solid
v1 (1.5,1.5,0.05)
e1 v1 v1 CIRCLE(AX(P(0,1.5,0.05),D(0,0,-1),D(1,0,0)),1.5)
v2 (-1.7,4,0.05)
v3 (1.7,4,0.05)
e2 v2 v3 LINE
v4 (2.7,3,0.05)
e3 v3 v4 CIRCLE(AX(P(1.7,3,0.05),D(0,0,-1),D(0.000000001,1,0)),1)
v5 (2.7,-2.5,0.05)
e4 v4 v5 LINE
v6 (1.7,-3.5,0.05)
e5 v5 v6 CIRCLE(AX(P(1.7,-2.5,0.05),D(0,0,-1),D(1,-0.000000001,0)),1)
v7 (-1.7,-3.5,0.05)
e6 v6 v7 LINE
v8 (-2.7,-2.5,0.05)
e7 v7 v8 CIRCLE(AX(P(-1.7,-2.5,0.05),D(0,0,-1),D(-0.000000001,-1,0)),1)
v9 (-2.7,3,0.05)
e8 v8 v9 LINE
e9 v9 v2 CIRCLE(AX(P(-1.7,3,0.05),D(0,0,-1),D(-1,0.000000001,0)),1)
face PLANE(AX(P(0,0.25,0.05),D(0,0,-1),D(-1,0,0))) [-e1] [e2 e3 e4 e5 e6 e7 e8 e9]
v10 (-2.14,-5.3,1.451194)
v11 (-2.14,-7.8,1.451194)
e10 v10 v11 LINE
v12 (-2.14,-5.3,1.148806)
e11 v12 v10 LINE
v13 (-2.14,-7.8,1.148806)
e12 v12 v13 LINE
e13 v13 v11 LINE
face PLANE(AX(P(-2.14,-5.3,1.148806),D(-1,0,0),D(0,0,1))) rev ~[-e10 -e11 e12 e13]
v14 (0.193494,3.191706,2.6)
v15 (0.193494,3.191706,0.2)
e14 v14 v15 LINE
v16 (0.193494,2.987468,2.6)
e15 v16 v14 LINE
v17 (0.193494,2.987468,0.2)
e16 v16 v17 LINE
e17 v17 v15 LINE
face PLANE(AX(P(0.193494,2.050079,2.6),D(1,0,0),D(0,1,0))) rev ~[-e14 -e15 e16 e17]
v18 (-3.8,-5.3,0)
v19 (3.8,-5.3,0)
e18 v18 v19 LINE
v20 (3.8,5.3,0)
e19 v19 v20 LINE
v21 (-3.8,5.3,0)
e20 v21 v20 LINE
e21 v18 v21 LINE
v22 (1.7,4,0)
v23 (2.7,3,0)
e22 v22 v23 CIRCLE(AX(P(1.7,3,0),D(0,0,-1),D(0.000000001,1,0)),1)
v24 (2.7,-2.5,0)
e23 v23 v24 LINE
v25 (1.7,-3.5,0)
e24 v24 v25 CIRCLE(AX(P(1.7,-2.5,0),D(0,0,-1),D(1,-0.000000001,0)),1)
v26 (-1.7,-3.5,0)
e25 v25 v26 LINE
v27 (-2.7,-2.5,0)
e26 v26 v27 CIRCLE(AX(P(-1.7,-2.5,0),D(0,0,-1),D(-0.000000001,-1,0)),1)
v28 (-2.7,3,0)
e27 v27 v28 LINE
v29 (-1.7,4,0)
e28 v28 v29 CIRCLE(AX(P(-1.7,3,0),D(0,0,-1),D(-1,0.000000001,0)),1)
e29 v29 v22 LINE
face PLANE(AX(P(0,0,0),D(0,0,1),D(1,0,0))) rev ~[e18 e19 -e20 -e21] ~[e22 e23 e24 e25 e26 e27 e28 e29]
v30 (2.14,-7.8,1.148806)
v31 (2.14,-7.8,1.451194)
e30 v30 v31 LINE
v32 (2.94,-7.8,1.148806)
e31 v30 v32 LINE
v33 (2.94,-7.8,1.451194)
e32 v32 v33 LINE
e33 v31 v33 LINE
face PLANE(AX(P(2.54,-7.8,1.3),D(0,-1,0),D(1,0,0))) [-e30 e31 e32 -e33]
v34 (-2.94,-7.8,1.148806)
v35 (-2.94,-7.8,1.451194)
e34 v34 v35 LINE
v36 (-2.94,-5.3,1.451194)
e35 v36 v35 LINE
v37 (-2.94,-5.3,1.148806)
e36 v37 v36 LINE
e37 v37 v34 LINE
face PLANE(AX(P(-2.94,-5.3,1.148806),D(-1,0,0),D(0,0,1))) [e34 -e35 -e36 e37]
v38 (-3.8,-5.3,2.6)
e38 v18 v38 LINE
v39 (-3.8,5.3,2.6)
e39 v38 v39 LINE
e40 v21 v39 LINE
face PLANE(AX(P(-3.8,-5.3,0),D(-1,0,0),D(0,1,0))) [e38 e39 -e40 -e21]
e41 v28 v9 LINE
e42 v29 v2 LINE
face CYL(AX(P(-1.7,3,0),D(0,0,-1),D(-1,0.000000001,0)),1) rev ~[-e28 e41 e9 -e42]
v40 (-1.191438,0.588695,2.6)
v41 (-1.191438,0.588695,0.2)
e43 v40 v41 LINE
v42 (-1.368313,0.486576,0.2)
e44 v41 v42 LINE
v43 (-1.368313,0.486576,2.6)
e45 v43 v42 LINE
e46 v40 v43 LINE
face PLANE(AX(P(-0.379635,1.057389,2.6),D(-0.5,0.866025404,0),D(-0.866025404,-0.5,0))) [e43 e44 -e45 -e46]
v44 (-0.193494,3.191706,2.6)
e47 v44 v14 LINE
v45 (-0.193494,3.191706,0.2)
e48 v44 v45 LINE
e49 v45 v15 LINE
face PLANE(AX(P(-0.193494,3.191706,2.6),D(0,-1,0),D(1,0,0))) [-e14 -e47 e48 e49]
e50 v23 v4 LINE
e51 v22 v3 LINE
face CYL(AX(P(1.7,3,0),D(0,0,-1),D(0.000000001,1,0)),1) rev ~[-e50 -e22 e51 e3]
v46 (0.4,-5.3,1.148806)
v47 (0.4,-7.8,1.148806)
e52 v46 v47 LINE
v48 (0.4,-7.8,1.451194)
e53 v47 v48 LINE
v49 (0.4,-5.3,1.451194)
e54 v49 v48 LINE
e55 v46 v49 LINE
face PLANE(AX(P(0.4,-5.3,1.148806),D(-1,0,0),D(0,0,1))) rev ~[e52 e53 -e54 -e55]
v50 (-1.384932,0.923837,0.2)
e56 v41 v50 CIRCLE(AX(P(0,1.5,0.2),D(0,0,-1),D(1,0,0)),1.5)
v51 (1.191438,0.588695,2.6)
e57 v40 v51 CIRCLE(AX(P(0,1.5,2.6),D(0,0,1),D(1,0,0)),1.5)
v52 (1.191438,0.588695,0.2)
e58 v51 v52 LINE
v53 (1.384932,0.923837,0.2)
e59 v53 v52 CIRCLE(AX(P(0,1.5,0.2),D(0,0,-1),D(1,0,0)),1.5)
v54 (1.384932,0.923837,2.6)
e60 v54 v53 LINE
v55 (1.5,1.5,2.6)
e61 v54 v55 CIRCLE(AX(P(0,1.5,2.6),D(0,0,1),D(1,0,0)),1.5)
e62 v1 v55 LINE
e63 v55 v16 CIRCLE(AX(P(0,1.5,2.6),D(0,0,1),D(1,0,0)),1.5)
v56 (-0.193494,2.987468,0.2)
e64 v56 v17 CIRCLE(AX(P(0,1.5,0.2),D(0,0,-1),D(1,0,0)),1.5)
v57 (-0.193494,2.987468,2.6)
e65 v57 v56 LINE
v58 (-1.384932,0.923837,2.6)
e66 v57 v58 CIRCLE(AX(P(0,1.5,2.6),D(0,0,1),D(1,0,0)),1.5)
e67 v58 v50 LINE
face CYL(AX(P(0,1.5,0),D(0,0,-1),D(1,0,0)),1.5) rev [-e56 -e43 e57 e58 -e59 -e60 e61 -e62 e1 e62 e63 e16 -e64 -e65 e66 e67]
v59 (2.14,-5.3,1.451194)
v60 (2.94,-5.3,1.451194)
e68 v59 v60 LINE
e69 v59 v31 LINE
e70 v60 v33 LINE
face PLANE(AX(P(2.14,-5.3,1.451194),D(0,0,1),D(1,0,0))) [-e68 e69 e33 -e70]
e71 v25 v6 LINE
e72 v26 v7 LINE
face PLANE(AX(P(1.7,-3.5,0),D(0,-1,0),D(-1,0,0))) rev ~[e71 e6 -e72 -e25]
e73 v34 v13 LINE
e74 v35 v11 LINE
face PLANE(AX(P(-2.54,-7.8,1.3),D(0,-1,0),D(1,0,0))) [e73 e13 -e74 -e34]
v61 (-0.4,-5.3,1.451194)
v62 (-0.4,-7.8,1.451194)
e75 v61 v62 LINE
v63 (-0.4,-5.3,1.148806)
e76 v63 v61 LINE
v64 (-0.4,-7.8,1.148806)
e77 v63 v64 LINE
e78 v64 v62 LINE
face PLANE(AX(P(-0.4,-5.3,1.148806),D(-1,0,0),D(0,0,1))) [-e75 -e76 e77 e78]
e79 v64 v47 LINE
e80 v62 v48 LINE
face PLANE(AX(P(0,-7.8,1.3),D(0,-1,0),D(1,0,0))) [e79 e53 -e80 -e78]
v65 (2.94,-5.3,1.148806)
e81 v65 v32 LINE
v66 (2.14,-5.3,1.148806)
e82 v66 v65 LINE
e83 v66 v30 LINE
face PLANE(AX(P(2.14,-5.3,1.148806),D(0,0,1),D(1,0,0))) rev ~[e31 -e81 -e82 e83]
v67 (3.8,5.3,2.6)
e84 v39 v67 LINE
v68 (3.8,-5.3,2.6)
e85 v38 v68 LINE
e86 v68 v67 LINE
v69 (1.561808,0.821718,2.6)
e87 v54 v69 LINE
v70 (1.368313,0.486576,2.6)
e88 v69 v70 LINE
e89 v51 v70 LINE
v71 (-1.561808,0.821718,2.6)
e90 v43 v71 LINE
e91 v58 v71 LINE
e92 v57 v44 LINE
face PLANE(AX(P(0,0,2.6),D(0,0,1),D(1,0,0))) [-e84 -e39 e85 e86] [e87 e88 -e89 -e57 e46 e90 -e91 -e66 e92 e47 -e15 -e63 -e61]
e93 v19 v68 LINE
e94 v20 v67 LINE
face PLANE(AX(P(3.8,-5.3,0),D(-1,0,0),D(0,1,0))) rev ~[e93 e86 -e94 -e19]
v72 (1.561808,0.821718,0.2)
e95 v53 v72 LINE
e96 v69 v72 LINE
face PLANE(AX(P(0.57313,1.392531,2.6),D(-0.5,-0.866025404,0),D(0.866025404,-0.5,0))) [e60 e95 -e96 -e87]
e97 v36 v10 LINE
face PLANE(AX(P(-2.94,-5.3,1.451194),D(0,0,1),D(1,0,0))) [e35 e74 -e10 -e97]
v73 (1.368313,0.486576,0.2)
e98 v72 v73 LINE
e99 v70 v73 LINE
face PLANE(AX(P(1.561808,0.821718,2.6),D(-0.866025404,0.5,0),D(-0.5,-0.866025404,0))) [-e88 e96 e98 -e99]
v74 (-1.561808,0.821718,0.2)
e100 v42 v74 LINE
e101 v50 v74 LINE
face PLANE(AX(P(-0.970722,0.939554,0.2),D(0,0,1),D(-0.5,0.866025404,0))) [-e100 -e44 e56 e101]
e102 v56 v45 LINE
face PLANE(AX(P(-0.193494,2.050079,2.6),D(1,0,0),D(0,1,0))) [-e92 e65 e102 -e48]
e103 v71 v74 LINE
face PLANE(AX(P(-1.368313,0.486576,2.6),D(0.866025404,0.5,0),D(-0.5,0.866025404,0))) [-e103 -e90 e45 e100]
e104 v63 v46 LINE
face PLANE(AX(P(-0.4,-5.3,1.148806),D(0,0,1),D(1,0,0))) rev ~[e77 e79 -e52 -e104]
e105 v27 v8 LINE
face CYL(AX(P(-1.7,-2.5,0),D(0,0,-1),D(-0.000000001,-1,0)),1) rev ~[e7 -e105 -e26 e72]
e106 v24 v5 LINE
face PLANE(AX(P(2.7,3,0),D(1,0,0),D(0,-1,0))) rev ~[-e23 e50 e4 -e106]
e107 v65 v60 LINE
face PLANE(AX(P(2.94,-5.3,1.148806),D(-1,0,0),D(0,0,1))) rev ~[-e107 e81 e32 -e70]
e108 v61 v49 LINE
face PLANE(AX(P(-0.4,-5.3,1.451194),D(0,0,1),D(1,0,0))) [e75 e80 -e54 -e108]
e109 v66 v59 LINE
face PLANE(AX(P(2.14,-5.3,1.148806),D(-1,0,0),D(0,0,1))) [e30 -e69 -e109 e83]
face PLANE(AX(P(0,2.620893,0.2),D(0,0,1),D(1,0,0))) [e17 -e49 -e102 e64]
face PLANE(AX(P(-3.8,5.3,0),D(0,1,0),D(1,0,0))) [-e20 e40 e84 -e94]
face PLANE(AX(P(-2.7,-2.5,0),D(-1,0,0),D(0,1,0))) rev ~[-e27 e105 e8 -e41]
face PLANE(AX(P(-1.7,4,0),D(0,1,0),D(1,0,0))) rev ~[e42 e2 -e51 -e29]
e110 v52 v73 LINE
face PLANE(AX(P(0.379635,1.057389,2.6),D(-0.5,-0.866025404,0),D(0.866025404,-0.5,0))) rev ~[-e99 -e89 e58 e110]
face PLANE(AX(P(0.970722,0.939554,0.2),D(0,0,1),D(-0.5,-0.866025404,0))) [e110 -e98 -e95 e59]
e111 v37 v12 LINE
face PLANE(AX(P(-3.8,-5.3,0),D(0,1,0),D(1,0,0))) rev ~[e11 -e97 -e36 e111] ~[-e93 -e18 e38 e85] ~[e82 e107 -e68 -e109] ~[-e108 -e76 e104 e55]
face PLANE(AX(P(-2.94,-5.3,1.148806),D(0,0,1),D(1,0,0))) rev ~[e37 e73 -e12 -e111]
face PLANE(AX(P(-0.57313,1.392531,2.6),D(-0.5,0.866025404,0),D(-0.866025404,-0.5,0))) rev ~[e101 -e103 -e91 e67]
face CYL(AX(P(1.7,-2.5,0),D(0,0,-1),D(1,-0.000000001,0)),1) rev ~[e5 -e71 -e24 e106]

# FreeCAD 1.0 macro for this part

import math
import FreeCAD as App
import Part
import Sketcher

V = App.Vector
Q = App.Units.Quantity

doc = App.newDocument("Part")
body = doc.addObject("PartDesign::Body", "Body")

# Sketch on XY plane
sketch1 = body.newObject("Sketcher::SketchObject", "Sketch")
sketch1.AttachmentSupport = (doc.getObject("XY_Plane"), [""])
sketch1.MapMode = "FlatFace"
sketch1.addGeometry([
    Part.LineSegment(V(-3.8, 5.3, 0), V(-3.8, -5.3, 0)),  # 0
    Part.LineSegment(V(-3.8, -5.3, 0), V(3.8, -5.3, 0)),  # 1
    Part.LineSegment(V(3.8, -5.3, 0), V(3.8, 5.3, 0)),  # 2
    Part.LineSegment(V(3.8, 5.3, 0), V(-3.8, 5.3, 0)),  # 3
    Part.Circle(V(0, 1.5, 0), V(0, 0, 1), 1.5),  # 4
], False)
sketch1.addConstraint([
    Sketcher.Constraint("Coincident", 0, 2, 1, 1),
    Sketcher.Constraint("Coincident", 1, 2, 2, 1),
    Sketcher.Constraint("Coincident", 2, 2, 3, 1),
    Sketcher.Constraint("Coincident", 3, 2, 0, 1),
    Sketcher.Constraint("Vertical", 0),
    Sketcher.Constraint("Horizontal", 1),
    Sketcher.Constraint("Vertical", 2),
    Sketcher.Constraint("Horizontal", 3),
    Sketcher.Constraint("Symmetric", 0, 2, 2, 2, -1, 1),
    Sketcher.Constraint("PointOnObject", 4, 3, -2),
    Sketcher.Constraint("Diameter", 4, Q("3 mm")),
    Sketcher.Constraint("DistanceX", 1, 1, 1, 2, Q("7.6 mm")),
    Sketcher.Constraint("DistanceY", 0, 2, 0, 1, Q("10.6 mm")),
    Sketcher.Constraint("DistanceY", -1, 1, 4, 3, Q("1.5 mm")),
])
pad1 = body.newObject("PartDesign::Pad", "Pad")
pad1.Profile = sketch1
pad1.Length = 2.6

# Sketch on XY plane
sketch2 = body.newObject("Sketcher::SketchObject", "Sketch001")
sketch2.AttachmentSupport = (doc.getObject("XY_Plane"), [""])
sketch2.MapMode = "FlatFace"
sketch2.AttachmentOffset = App.Placement(V(0, 0, 2.6), App.Rotation())
sketch2.addGeometry([
    Part.LineSegment(V(-0.19, 3.19, 0), V(-0.19, 2.05, 0)),
    Part.LineSegment(V(-0.19, 2.05, 0), V(0.19, 2.05, 0)),
    Part.LineSegment(V(0.19, 2.05, 0), V(0.19, 3.19, 0)),
    Part.LineSegment(V(0.19, 3.19, 0), V(-0.19, 3.19, 0)),
], False)
sketch2.addConstraint([
    Sketcher.Constraint("Coincident", 0, 2, 1, 1),
    Sketcher.Constraint("Coincident", 1, 2, 2, 1),
    Sketcher.Constraint("Coincident", 2, 2, 3, 1),
    Sketcher.Constraint("Coincident", 3, 2, 0, 1),
    Sketcher.Constraint("Vertical", 0),
    Sketcher.Constraint("Horizontal", 1),
    Sketcher.Constraint("Vertical", 2),
    Sketcher.Constraint("Horizontal", 3),
    Sketcher.Constraint("DistanceX", 1, 1, 1, 2, Q("0.386989 mm")),
    Sketcher.Constraint("DistanceY", 0, 2, 0, 1, Q("1.141627 mm")),
    Sketcher.Constraint("DistanceY", -1, 1, 0, 2, Q("2.050079 mm")),
    Sketcher.Constraint("DistanceX", 0, 2, -1, 1, Q("0.193494 mm")),
])
pocket1 = body.newObject("PartDesign::Pocket", "Pocket")
pocket1.Profile = sketch2
pocket1.Length = 2.4
doc.recompute()

datumline = body.newObject("PartDesign::Line", "DatumLine")
datumline.Placement = App.Placement(V(0, 1.5, 0), App.Rotation(V(0, 0, 1), V(0, 0, 1)))
polarpattern = body.newObject("PartDesign::PolarPattern", "PolarPattern")
polarpattern.Originals = [pocket1]
polarpattern.Axis = (datumline, [""])
polarpattern.Angle = 360
polarpattern.Occurrences = 3
body.Tip = polarpattern

# Sketch on XY plane
sketch3 = body.newObject("Sketcher::SketchObject", "Sketch002")
sketch3.AttachmentSupport = (doc.getObject("XY_Plane"), [""])
sketch3.MapMode = "FlatFace"
sketch3.addGeometry([
    Part.LineSegment(V(1.7, -3.5, 0), V(-1.7, -3.5, 0)),  # 0
    Part.ArcOfCircle(Part.Circle(V(-1.7, -2.5, 0), V(0, 0, 1), 1), math.radians(-180), math.radians(-90)),  # 1
    Part.LineSegment(V(-2.7, -2.5, 0), V(-2.7, 3, 0)),  # 2
    Part.ArcOfCircle(Part.Circle(V(-1.7, 3, 0), V(0, 0, 1), 1), math.radians(90), math.radians(180)),  # 3
    Part.LineSegment(V(-1.7, 4, 0), V(1.7, 4, 0)),  # 4
    Part.ArcOfCircle(Part.Circle(V(1.7, 3, 0), V(0, 0, 1), 1), math.radians(0), math.radians(90)),  # 5
    Part.LineSegment(V(2.7, 3, 0), V(2.7, -2.5, 0)),  # 6
    Part.ArcOfCircle(Part.Circle(V(1.7, -2.5, 0), V(0, 0, 1), 1), math.radians(-90), math.radians(0)),  # 7
], False)
sketch3.addConstraint([
    Sketcher.Constraint("Tangent", 0, 2, 1, 2),
    Sketcher.Constraint("Tangent", 1, 1, 2, 1),
    Sketcher.Constraint("Tangent", 2, 2, 3, 2),
    Sketcher.Constraint("Tangent", 3, 1, 4, 1),
    Sketcher.Constraint("Tangent", 4, 2, 5, 2),
    Sketcher.Constraint("Tangent", 5, 1, 6, 1),
    Sketcher.Constraint("Tangent", 6, 2, 7, 2),
    Sketcher.Constraint("Tangent", 7, 1, 0, 1),
    Sketcher.Constraint("Horizontal", 0),
    Sketcher.Constraint("Vertical", 2),
    Sketcher.Constraint("Horizontal", 4),
    Sketcher.Constraint("Vertical", 6),
    Sketcher.Constraint("Equal", 1, 3),
    Sketcher.Constraint("Equal", 3, 5),
    Sketcher.Constraint("Equal", 5, 7),
    Sketcher.Constraint("Radius", 1, Q("1 mm")),
    Sketcher.Constraint("DistanceX", 0, 2, 0, 1, Q("3.4 mm")),
    Sketcher.Constraint("DistanceY", 2, 1, 2, 2, Q("5.5 mm")),
    Sketcher.Constraint("DistanceY", -1, 1, 3, 3, Q("3 mm")),
    Sketcher.Constraint("DistanceX", 1, 3, -1, 1, Q("1.7 mm")),
])
pocket2 = body.newObject("PartDesign::Pocket", "Pocket001")
pocket2.Profile = sketch3
pocket2.Length = 0.05
pocket2.Reversed = True

# Sketch on XZ plane
sketch4 = body.newObject("Sketcher::SketchObject", "Sketch003")
sketch4.AttachmentSupport = (doc.getObject("XZ_Plane"), [""])
sketch4.MapMode = "FlatFace"
sketch4.AttachmentOffset = App.Placement(V(0, 0, 5.3), App.Rotation())
sketch4.addGeometry([
    Part.LineSegment(V(-2.94, 1.45, 0), V(-2.94, 1.15, 0)),  # 0
    Part.LineSegment(V(-2.94, 1.15, 0), V(-2.14, 1.15, 0)),  # 1
    Part.LineSegment(V(-2.14, 1.15, 0), V(-2.14, 1.45, 0)),  # 2
    Part.LineSegment(V(-2.14, 1.45, 0), V(-2.94, 1.45, 0)),  # 3
    Part.LineSegment(V(-0.4, 1.45, 0), V(-0.4, 1.15, 0)),  # 4
    Part.LineSegment(V(-0.4, 1.15, 0), V(0.4, 1.15, 0)),  # 5
    Part.LineSegment(V(0.4, 1.15, 0), V(0.4, 1.45, 0)),  # 6
    Part.LineSegment(V(0.4, 1.45, 0), V(-0.4, 1.45, 0)),  # 7
    Part.LineSegment(V(2.14, 1.45, 0), V(2.14, 1.15, 0)),  # 8
    Part.LineSegment(V(2.14, 1.15, 0), V(2.94, 1.15, 0)),  # 9
    Part.LineSegment(V(2.94, 1.15, 0), V(2.94, 1.45, 0)),  # 10
    Part.LineSegment(V(2.94, 1.45, 0), V(2.14, 1.45, 0)),  # 11
], False)
sketch4.addConstraint([
    Sketcher.Constraint("Coincident", 0, 2, 1, 1),
    Sketcher.Constraint("Coincident", 1, 2, 2, 1),
    Sketcher.Constraint("Coincident", 2, 2, 3, 1),
    Sketcher.Constraint("Coincident", 3, 2, 0, 1),
    Sketcher.Constraint("Coincident", 4, 2, 5, 1),
    Sketcher.Constraint("Coincident", 5, 2, 6, 1),
    Sketcher.Constraint("Coincident", 6, 2, 7, 1),
    Sketcher.Constraint("Coincident", 7, 2, 4, 1),
    Sketcher.Constraint("Coincident", 8, 2, 9, 1),
    Sketcher.Constraint("Coincident", 9, 2, 10, 1),
    Sketcher.Constraint("Coincident", 10, 2, 11, 1),
    Sketcher.Constraint("Coincident", 11, 2, 8, 1),
    Sketcher.Constraint("Vertical", 0),
    Sketcher.Constraint("Horizontal", 1),
    Sketcher.Constraint("Vertical", 2),
    Sketcher.Constraint("Horizontal", 3),
    Sketcher.Constraint("Vertical", 4),
    Sketcher.Constraint("Horizontal", 5),
    Sketcher.Constraint("Vertical", 6),
    Sketcher.Constraint("Horizontal", 7),
    Sketcher.Constraint("Vertical", 8),
    Sketcher.Constraint("Horizontal", 9),
    Sketcher.Constraint("Vertical", 10),
    Sketcher.Constraint("Horizontal", 11),
    Sketcher.Constraint("Symmetric", 1, 2, 8, 2, -2),
    Sketcher.Constraint("Symmetric", 3, 2, 10, 2, -2),
    Sketcher.Constraint("Horizontal", 1, 2, 4, 2),
    Sketcher.Constraint("Horizontal", 3, 2, 6, 2),
    Sketcher.Constraint("Equal", 3, 5),
    Sketcher.Constraint("DistanceX", 1, 1, 1, 2, Q("0.8 mm")),
    Sketcher.Constraint("DistanceX", 4, 2, -1, 1, Q("0.4 mm")),
    Sketcher.Constraint("DistanceX", 0, 2, -1, 1, Q("2.94 mm")),
    Sketcher.Constraint("DistanceY", 0, 2, 0, 1, Q("0.302388 mm")),
    Sketcher.Constraint("DistanceY", -1, 1, 0, 2, Q("1.148806 mm")),
])
pad2 = body.newObject("PartDesign::Pad", "Pad001")
pad2.Profile = sketch4
pad2.Length = 2.5

doc.recompute()
